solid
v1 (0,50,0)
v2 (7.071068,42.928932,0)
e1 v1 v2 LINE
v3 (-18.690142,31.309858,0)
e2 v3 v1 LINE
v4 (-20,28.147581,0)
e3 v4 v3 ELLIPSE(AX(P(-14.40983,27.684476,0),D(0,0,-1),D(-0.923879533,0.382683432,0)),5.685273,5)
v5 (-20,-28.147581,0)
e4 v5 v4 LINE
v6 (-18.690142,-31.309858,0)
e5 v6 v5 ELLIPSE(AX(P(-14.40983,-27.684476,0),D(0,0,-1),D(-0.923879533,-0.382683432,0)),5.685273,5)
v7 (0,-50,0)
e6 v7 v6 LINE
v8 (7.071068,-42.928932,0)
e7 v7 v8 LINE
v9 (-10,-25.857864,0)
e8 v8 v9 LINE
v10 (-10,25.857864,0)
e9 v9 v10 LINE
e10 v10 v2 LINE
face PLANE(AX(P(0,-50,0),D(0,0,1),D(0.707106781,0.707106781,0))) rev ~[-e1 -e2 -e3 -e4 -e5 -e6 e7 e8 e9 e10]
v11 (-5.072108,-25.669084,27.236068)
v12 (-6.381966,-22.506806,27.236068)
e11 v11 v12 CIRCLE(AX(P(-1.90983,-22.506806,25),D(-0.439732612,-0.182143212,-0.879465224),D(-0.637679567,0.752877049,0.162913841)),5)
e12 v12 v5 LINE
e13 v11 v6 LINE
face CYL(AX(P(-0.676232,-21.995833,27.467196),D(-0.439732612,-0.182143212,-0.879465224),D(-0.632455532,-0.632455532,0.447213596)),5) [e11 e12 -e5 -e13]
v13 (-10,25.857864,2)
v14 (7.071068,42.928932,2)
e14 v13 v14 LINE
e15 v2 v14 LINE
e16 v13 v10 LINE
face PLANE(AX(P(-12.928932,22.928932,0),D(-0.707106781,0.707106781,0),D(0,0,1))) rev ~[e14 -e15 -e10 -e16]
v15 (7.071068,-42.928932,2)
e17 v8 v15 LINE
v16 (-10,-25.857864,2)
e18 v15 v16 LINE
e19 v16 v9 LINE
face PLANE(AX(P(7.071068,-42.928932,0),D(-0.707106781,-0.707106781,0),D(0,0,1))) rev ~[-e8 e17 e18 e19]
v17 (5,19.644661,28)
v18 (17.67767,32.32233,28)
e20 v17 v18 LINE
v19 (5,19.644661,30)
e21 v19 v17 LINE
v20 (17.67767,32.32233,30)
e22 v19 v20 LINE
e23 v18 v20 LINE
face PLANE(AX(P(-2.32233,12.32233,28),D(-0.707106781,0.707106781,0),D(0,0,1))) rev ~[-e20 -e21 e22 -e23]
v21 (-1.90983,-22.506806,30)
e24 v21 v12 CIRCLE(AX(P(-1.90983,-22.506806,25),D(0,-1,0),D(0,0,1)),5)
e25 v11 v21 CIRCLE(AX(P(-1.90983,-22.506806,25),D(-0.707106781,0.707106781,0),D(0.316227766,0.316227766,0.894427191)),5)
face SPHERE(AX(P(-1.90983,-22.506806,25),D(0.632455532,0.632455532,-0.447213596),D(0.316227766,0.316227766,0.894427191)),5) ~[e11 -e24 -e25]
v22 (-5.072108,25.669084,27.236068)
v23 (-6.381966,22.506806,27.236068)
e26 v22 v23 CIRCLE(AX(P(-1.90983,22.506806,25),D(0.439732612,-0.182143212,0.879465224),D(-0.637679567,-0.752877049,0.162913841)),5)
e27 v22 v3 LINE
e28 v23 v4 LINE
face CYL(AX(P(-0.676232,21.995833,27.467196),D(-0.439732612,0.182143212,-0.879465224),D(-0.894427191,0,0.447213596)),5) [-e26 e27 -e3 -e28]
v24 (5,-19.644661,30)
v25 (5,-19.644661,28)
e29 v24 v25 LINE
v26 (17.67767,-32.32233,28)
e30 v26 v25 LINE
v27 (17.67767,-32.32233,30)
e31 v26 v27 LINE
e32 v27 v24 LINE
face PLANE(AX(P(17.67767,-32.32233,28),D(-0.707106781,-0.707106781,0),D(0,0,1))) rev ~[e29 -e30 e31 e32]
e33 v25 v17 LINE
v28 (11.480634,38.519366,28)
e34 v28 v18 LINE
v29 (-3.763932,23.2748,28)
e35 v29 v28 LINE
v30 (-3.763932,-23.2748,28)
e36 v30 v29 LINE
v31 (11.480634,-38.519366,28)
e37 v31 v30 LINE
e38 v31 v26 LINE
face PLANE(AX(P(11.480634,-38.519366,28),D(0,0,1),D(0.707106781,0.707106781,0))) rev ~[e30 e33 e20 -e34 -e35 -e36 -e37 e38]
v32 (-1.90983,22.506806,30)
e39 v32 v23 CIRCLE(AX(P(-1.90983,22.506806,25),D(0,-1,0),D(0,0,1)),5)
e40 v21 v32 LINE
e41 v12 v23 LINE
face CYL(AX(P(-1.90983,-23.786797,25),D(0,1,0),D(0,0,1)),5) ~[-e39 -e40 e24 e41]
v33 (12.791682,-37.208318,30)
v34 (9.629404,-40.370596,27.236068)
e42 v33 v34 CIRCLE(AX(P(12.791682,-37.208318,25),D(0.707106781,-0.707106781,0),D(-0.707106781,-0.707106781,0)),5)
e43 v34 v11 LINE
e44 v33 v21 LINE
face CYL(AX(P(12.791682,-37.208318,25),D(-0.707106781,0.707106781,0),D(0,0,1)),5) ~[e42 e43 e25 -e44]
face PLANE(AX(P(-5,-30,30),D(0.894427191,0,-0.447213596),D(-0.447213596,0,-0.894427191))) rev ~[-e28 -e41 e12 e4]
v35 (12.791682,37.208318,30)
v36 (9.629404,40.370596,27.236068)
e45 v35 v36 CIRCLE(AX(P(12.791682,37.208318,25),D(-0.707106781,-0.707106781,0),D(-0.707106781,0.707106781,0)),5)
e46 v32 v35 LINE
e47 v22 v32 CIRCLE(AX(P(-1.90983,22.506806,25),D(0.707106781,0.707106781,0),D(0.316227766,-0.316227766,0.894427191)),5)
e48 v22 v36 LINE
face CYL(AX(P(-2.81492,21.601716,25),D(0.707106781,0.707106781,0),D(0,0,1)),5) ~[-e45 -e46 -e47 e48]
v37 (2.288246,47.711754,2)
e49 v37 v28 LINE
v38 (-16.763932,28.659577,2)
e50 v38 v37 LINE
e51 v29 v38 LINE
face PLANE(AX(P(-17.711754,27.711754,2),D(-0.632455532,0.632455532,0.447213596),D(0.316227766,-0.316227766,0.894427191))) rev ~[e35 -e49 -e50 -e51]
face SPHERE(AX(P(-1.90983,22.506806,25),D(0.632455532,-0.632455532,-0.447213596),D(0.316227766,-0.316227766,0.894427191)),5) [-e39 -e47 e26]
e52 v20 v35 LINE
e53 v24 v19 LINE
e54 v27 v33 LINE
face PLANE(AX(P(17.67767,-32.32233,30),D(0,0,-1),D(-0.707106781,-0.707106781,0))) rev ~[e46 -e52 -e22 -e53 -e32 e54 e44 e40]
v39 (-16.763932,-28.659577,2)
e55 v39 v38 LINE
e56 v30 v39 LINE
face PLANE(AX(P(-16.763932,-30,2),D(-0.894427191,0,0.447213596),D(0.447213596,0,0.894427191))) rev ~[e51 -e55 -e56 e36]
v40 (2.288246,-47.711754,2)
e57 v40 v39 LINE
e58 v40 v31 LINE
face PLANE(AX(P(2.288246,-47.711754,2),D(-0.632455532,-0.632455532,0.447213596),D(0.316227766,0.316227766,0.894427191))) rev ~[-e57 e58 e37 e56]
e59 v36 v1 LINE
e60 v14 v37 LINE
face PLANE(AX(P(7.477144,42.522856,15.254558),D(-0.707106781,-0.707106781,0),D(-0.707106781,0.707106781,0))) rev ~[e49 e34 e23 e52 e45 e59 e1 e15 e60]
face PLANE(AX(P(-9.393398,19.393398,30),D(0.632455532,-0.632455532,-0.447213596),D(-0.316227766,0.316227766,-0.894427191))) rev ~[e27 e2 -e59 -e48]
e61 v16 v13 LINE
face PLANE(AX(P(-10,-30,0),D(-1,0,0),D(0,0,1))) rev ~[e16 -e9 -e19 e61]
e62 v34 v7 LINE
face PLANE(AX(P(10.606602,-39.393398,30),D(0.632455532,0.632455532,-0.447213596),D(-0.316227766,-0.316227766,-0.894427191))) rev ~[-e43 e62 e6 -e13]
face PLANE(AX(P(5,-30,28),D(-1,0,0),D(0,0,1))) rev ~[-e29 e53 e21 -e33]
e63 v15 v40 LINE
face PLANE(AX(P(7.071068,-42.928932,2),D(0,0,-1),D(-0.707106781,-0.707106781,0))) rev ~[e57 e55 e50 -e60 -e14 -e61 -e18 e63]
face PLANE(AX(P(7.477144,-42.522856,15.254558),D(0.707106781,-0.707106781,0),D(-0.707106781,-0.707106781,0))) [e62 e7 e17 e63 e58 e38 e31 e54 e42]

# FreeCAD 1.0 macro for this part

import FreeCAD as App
import Part
import Sketcher

V = App.Vector


def edges_at(feature, points):
    """Names of the edges that pass closest to the given points."""
    edges = feature.Shape.Edges
    near = lambda p: min(range(len(edges)), key=lambda i: edges[i].distToShape(Part.Vertex(*p))[0])
    return sorted({f"Edge{near(p) + 1}" for p in points})

doc = App.newDocument("Part")
body = doc.addObject("PartDesign::Body", "Body")

sketch1 = body.newObject("Sketcher::SketchObject", "Sketch")
sketch1.AttachmentSupport = (doc.getObject("XZ_Plane"), [""])
sketch1.MapMode = "FlatFace"
sketch1.addGeometry([
    Part.LineSegment(V(-20, 0, 0), V(-10, 0, 0)),
    Part.LineSegment(V(-10, 0, 0), V(-10, 2, 0)),
    Part.LineSegment(V(-10, 2, 0), V(-16.763932, 2, 0)),
    Part.LineSegment(V(-16.763932, 2, 0), V(-3.763932, 28, 0)),
    Part.LineSegment(V(-3.763932, 28, 0), V(5, 28, 0)),
    Part.LineSegment(V(5, 28, 0), V(5, 30, 0)),
    Part.LineSegment(V(5, 30, 0), V(-5, 30, 0)),
    Part.LineSegment(V(-5, 30, 0), V(-20, 0, 0)),
], False)
sketch1.addConstraint([
    Sketcher.Constraint("Coincident", 0, 2, 1, 1),
    Sketcher.Constraint("Coincident", 1, 2, 2, 1),
    Sketcher.Constraint("Coincident", 2, 2, 3, 1),
    Sketcher.Constraint("Coincident", 3, 2, 4, 1),
    Sketcher.Constraint("Coincident", 4, 2, 5, 1),
    Sketcher.Constraint("Coincident", 5, 2, 6, 1),
    Sketcher.Constraint("Coincident", 6, 2, 7, 1),
    Sketcher.Constraint("Coincident", 7, 2, 0, 1),
    Sketcher.Constraint("Horizontal", 0),
    Sketcher.Constraint("Vertical", 1),
    Sketcher.Constraint("Horizontal", 2),
    Sketcher.Constraint("Horizontal", 4),
    Sketcher.Constraint("Vertical", 5),
    Sketcher.Constraint("Horizontal", 6),
    Sketcher.Constraint("PointOnObject", 0, 2, -1),
    Sketcher.Constraint("Parallel", 3, 7),
    Sketcher.Constraint("Equal", 0, 6),
    Sketcher.Constraint("Equal", 1, 5),
    Sketcher.Constraint("DistanceX", 0, 1, 0, 2, 10.0),
    Sketcher.Constraint("DistanceY", 1, 1, 1, 2, 2.0),
    Sketcher.Constraint("DistanceX", 0, 2, -1, 1, 10.0),
    Sketcher.Constraint("DistanceY", -1, 1, 3, 2, 28.0),
    Sketcher.Constraint("DistanceX", -1, 1, 4, 2, 5.0),
    Sketcher.Constraint("DistanceX", 2, 2, 2, 1, 6.763932),
])

sketch2 = body.newObject("Sketcher::SketchObject", "Sketch001")
sketch2.AttachmentSupport = (doc.getObject("XY_Plane"), [""])
sketch2.MapMode = "FlatFace"
sketch2.addGeometry([
    Part.LineSegment(V(0, -50, 0), V(-20, -30, 0)),
    Part.LineSegment(V(-20, -30, 0), V(-20, 30, 0)),
    Part.LineSegment(V(-20, 30, 0), V(0, 50, 0)),
], False)
sketch2.addConstraint([
    Sketcher.Constraint("Coincident", 0, 2, 1, 1),
    Sketcher.Constraint("Coincident", 1, 2, 2, 1),
    Sketcher.Constraint("Vertical", 1),
    Sketcher.Constraint("Symmetric", 0, 1, 2, 2, -1, 1),
    Sketcher.Constraint("PointOnObject", 0, 1, -2),
    Sketcher.Constraint("Perpendicular", 0, 2),
    Sketcher.Constraint("Equal", 0, 2),
    Sketcher.Constraint("DistanceY", 1, 1, 1, 2, 60.0),
    Sketcher.Constraint("DistanceY", 0, 1, -1, 1, 50.0),
])
doc.recompute()

additivepipe = body.newObject("PartDesign::AdditivePipe", "AdditivePipe")
additivepipe.Profile = sketch1
additivepipe.Spine = (sketch2, ["Edge1", "Edge2", "Edge3"])
additivepipe.Transition = "Right corner"
doc.recompute()

fillet = body.newObject("PartDesign::Fillet", "Fillet")
fillet.Base = (additivepipe, edges_at(additivepipe, [
    (-5, 0, 30),
    (2.803, 31.59, 30),
    (2.803, -31.59, 30),
    (-12.5, -26.893, 15),
    (-12.5, 26.893, 15),
]))
fillet.Radius = 5

doc.recompute()
